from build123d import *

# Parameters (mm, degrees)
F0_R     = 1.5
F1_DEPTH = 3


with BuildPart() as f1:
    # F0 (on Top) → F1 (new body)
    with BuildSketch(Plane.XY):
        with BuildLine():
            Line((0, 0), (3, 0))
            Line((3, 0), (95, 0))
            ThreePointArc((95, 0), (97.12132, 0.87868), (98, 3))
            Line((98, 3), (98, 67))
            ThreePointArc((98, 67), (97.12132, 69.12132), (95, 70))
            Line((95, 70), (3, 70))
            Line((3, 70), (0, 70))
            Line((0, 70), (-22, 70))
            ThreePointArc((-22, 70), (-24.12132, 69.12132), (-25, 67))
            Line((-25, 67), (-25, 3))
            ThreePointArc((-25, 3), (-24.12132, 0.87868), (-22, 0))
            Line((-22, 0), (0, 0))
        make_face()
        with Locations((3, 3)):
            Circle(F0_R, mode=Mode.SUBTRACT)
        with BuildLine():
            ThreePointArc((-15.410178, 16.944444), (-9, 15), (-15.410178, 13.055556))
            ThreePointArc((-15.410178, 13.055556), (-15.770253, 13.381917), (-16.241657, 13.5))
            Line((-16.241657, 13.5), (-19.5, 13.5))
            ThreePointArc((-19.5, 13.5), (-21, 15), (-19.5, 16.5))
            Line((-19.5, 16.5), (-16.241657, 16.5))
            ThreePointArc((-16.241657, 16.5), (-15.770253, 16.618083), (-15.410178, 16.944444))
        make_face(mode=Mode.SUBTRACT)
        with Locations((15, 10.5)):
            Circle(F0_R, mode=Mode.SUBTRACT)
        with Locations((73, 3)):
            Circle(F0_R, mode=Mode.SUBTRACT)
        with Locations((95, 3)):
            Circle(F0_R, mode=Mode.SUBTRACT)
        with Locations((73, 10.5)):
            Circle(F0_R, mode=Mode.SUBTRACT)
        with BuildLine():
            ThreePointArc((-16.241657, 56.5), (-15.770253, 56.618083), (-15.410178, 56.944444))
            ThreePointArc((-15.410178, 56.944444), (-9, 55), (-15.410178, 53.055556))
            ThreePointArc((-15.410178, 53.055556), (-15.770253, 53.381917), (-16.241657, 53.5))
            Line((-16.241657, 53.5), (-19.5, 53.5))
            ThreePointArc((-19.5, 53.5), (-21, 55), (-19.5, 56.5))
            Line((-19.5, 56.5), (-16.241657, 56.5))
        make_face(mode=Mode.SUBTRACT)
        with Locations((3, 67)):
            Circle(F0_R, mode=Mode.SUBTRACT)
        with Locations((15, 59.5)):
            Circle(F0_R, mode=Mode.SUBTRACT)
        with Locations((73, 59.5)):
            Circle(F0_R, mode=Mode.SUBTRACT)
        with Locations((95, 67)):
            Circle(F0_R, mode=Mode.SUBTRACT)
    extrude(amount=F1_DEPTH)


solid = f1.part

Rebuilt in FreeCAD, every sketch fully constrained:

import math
import FreeCAD as App
import Part
import Sketcher
from FreeCAD import Vector

doc = App.newDocument("Part")
params = doc.addObject("Spreadsheet::Sheet", "Params")
for row, (alias, value) in enumerate([
    ("sketch1_diameter", "3 mm"),
    ("sketch1_radius", "3.000001 mm"),
    ("sketch1_radius2", "3.5 mm"),
    ("sketch1_width", "117 mm"),
    ("sketch1_height", "64 mm"),
    ("pad1_length", "3 mm"),
], start=1):
    params.set(f"A{row}", alias)
    params.set(f"B{row}", "=" + value)
    params.setAlias(f"B{row}", alias)

body = doc.addObject("PartDesign::Body", "Body")

# Sketch on XY plane
sketch1 = body.newObject("Sketcher::SketchObject", "Sketch")
sketch1.AttachmentSupport = (doc.getObject("XY_Plane"), [""])
sketch1.MapMode = "FlatFace"
sketch1.addGeometry([
    Part.ArcOfCircle(Part.Circle(Vector(95, 3, 0), Vector(0, 0, 1), 3), math.radians(-90), math.radians(0)),  # 0
    Part.LineSegment(Vector(98, 3, 0), Vector(98, 67, 0)),  # 1
    Part.ArcOfCircle(Part.Circle(Vector(95, 67, 0), Vector(0, 0, 1), 3), math.radians(0), math.radians(90)),  # 2
    Part.LineSegment(Vector(95, 70, 0), Vector(-22, 70, 0)),  # 3
    Part.ArcOfCircle(Part.Circle(Vector(-22, 67, 0), Vector(0, 0, 1), 3), math.radians(90), math.radians(180)),  # 4
    Part.LineSegment(Vector(-25, 67, 0), Vector(-25, 3, 0)),  # 5
    Part.ArcOfCircle(Part.Circle(Vector(-22, 3, 0), Vector(0, 0, 1), 3), math.radians(-180), math.radians(-90)),  # 6
    Part.LineSegment(Vector(-22, 0, 0), Vector(95, 0, 0)),  # 7
    Part.Circle(Vector(3, 3, 0), Vector(0, 0, 1), 1.5),  # 8
    Part.ArcOfCircle(Part.Circle(Vector(-16.2, 17.5, 0), Vector(0, 0, 1), 1), math.radians(-90), math.radians(-34)),  # 9
    Part.ArcOfCircle(Part.Circle(Vector(-12.5, 15, 0), Vector(0, 0, 1), 3.5), math.radians(-146), math.radians(146)),  # 10
    Part.ArcOfCircle(Part.Circle(Vector(-16.2, 12.5, 0), Vector(0, 0, 1), 1), math.radians(34), math.radians(90)),  # 11
    Part.LineSegment(Vector(-16.2, 13.5, 0), Vector(-19.5, 13.5, 0)),  # 12
    Part.ArcOfCircle(Part.Circle(Vector(-19.5, 15, 0), Vector(0, 0, 1), 1.5), math.radians(90), math.radians(270)),  # 13
    Part.LineSegment(Vector(-19.5, 16.5, 0), Vector(-16.2, 16.5, 0)),  # 14
    Part.Circle(Vector(15, 10.5, 0), Vector(0, 0, 1), 1.5),  # 15
    Part.Circle(Vector(73, 3, 0), Vector(0, 0, 1), 1.5),  # 16
    Part.Circle(Vector(95, 3, 0), Vector(0, 0, 1), 1.5),  # 17
    Part.Circle(Vector(73, 10.5, 0), Vector(0, 0, 1), 1.5),  # 18
    Part.LineSegment(Vector(-19.5, 56.5, 0), Vector(-16.2, 56.5, 0)),  # 19
    Part.ArcOfCircle(Part.Circle(Vector(-16.2, 57.5, 0), Vector(0, 0, 1), 1), math.radians(-90), math.radians(-34)),  # 20
    Part.ArcOfCircle(Part.Circle(Vector(-12.5, 55, 0), Vector(0, 0, 1), 3.5), math.radians(-146), math.radians(146)),  # 21
    Part.ArcOfCircle(Part.Circle(Vector(-16.2, 52.5, 0), Vector(0, 0, 1), 1), math.radians(34), math.radians(90)),  # 22
    Part.LineSegment(Vector(-16.2, 53.5, 0), Vector(-19.5, 53.5, 0)),  # 23
    Part.ArcOfCircle(Part.Circle(Vector(-19.5, 55, 0), Vector(0, 0, 1), 1.5), math.radians(90), math.radians(270)),  # 24
    Part.Circle(Vector(3, 67, 0), Vector(0, 0, 1), 1.5),  # 25
    Part.Circle(Vector(15, 59.5, 0), Vector(0, 0, 1), 1.5),  # 26
    Part.Circle(Vector(73, 59.5, 0), Vector(0, 0, 1), 1.5),  # 27
    Part.Circle(Vector(95, 67, 0), Vector(0, 0, 1), 1.5),  # 28
], False)
sketch1.addConstraint([
    Sketcher.Constraint("Tangent", 0, 2, 1, 1),
    Sketcher.Constraint("Tangent", 1, 2, 2, 1),
    Sketcher.Constraint("Tangent", 2, 2, 3, 1),
    Sketcher.Constraint("Tangent", 3, 2, 4, 1),
    Sketcher.Constraint("Tangent", 4, 2, 5, 1),
    Sketcher.Constraint("Tangent", 5, 2, 6, 1),
    Sketcher.Constraint("Tangent", 6, 2, 7, 1),
    Sketcher.Constraint("Tangent", 7, 2, 0, 1),
    Sketcher.Constraint("Tangent", 9, 2, 10, 2),
    Sketcher.Constraint("Tangent", 10, 1, 11, 1),
    Sketcher.Constraint("Tangent", 11, 2, 12, 1),
    Sketcher.Constraint("Tangent", 12, 2, 13, 2),
    Sketcher.Constraint("Tangent", 13, 1, 14, 1),
    Sketcher.Constraint("Tangent", 14, 2, 9, 1),
    Sketcher.Constraint("Tangent", 19, 2, 20, 1),
    Sketcher.Constraint("Tangent", 20, 2, 21, 2),
    Sketcher.Constraint("Tangent", 21, 1, 22, 1),
    Sketcher.Constraint("Tangent", 22, 2, 23, 1),
    Sketcher.Constraint("Tangent", 23, 2, 24, 2),
    Sketcher.Constraint("Tangent", 24, 1, 19, 1),
    Sketcher.Constraint("Vertical", 1),
    Sketcher.Constraint("Horizontal", 3),
    Sketcher.Constraint("Vertical", 5),
    Sketcher.Constraint("Horizontal", 7),
    Sketcher.Constraint("Horizontal", 12),
    Sketcher.Constraint("Horizontal", 14),
    Sketcher.Constraint("Horizontal", 19),
    Sketcher.Constraint("Horizontal", 23),
    Sketcher.Constraint("Coincident", 17, 3, 0, 3),
    Sketcher.Constraint("Coincident", 28, 3, 2, 3),
    Sketcher.Constraint("Equal", 0, 2),
    Sketcher.Constraint("Equal", 2, 4),
    Sketcher.Constraint("Equal", 4, 6),
    Sketcher.Constraint("Equal", 9, 11),
    Sketcher.Constraint("Equal", 8, 13),
    Sketcher.Constraint("Equal", 13, 15),
    Sketcher.Constraint("Equal", 15, 16),
    Sketcher.Constraint("Equal", 16, 17),
    Sketcher.Constraint("Equal", 17, 18),
    Sketcher.Constraint("Equal", 11, 20),
    Sketcher.Constraint("Equal", 10, 21),
    Sketcher.Constraint("Equal", 20, 22),
    Sketcher.Constraint("Equal", 18, 24),
    Sketcher.Constraint("Equal", 24, 25),
    Sketcher.Constraint("Equal", 25, 26),
    Sketcher.Constraint("Equal", 26, 27),
    Sketcher.Constraint("Equal", 27, 28),
    Sketcher.Constraint("PointOnObject", 6, 2, -1),
    Sketcher.Constraint("Horizontal", 6, 3, 8, 3),
    Sketcher.Constraint("Horizontal", 10, 3, 13, 3),
    Sketcher.Constraint("Horizontal", 8, 3, 16, 3),
    Sketcher.Constraint("Horizontal", 15, 3, 18, 3),
    Sketcher.Constraint("Horizontal", 21, 3, 24, 3),
    Sketcher.Constraint("Horizontal", 4, 3, 25, 3),
    Sketcher.Constraint("Horizontal", 26, 3, 27, 3),
    Sketcher.Constraint("Vertical", 16, 3, 18, 3),
    Sketcher.Constraint("Vertical", 11, 3, 20, 3),
    Sketcher.Constraint("Vertical", 13, 3, 24, 3),
    Sketcher.Constraint("Vertical", 8, 3, 25, 3),
    Sketcher.Constraint("Vertical", 15, 3, 26, 3),
    Sketcher.Constraint("Vertical", 18, 3, 27, 3),
    Sketcher.Constraint("Diameter", 8, 3.0),
    Sketcher.Constraint("Radius", 0, 3.000001),
    Sketcher.Constraint("Radius", 10, 3.5),
    Sketcher.Constraint("DistanceX", 3, 2, 3, 1, 117.0),
    Sketcher.Constraint("DistanceY", 1, 1, 1, 2, 64.0),
    Sketcher.Constraint("DistanceX", -1, 1, 0, 3, 94.999999),
    Sketcher.Constraint("DistanceX", -1, 1, 8, 3, 3.0),
    Sketcher.Constraint("DistanceY", -1, 1, 10, 3, 15.0),
    Sketcher.Constraint("DistanceX", -1, 1, 15, 3, 15.0),
    Sketcher.Constraint("DistanceX", -1, 1, 16, 3, 73.0),
    Sketcher.Constraint("DistanceY", -1, 1, 21, 3, 55.0),
    Sketcher.Constraint("DistanceX", 13, 3, 10, 3, 7.0),
    Sketcher.Constraint("DistanceY", 18, 3, 27, 3, 49.0),
    Sketcher.Constraint("DistanceX", 10, 3, -1, 1, 12.5),
    Sketcher.Constraint("DistanceY", -1, 1, 15, 3, 10.5),
    Sketcher.Constraint("DistanceY", 6, 3, 9, 3, 14.500001),
])
sketch1.setExpression("Constraints[61]", "Params.sketch1_diameter")
sketch1.setExpression("Constraints[62]", "Params.sketch1_radius")
sketch1.setExpression("Constraints[63]", "Params.sketch1_radius2")
sketch1.setExpression("Constraints[64]", "Params.sketch1_width")
sketch1.setExpression("Constraints[65]", "Params.sketch1_height")
pad1 = body.newObject("PartDesign::Pad", "Pad")
pad1.Profile = sketch1
pad1.setExpression("Length", "Params.pad1_length")

doc.recompute()
